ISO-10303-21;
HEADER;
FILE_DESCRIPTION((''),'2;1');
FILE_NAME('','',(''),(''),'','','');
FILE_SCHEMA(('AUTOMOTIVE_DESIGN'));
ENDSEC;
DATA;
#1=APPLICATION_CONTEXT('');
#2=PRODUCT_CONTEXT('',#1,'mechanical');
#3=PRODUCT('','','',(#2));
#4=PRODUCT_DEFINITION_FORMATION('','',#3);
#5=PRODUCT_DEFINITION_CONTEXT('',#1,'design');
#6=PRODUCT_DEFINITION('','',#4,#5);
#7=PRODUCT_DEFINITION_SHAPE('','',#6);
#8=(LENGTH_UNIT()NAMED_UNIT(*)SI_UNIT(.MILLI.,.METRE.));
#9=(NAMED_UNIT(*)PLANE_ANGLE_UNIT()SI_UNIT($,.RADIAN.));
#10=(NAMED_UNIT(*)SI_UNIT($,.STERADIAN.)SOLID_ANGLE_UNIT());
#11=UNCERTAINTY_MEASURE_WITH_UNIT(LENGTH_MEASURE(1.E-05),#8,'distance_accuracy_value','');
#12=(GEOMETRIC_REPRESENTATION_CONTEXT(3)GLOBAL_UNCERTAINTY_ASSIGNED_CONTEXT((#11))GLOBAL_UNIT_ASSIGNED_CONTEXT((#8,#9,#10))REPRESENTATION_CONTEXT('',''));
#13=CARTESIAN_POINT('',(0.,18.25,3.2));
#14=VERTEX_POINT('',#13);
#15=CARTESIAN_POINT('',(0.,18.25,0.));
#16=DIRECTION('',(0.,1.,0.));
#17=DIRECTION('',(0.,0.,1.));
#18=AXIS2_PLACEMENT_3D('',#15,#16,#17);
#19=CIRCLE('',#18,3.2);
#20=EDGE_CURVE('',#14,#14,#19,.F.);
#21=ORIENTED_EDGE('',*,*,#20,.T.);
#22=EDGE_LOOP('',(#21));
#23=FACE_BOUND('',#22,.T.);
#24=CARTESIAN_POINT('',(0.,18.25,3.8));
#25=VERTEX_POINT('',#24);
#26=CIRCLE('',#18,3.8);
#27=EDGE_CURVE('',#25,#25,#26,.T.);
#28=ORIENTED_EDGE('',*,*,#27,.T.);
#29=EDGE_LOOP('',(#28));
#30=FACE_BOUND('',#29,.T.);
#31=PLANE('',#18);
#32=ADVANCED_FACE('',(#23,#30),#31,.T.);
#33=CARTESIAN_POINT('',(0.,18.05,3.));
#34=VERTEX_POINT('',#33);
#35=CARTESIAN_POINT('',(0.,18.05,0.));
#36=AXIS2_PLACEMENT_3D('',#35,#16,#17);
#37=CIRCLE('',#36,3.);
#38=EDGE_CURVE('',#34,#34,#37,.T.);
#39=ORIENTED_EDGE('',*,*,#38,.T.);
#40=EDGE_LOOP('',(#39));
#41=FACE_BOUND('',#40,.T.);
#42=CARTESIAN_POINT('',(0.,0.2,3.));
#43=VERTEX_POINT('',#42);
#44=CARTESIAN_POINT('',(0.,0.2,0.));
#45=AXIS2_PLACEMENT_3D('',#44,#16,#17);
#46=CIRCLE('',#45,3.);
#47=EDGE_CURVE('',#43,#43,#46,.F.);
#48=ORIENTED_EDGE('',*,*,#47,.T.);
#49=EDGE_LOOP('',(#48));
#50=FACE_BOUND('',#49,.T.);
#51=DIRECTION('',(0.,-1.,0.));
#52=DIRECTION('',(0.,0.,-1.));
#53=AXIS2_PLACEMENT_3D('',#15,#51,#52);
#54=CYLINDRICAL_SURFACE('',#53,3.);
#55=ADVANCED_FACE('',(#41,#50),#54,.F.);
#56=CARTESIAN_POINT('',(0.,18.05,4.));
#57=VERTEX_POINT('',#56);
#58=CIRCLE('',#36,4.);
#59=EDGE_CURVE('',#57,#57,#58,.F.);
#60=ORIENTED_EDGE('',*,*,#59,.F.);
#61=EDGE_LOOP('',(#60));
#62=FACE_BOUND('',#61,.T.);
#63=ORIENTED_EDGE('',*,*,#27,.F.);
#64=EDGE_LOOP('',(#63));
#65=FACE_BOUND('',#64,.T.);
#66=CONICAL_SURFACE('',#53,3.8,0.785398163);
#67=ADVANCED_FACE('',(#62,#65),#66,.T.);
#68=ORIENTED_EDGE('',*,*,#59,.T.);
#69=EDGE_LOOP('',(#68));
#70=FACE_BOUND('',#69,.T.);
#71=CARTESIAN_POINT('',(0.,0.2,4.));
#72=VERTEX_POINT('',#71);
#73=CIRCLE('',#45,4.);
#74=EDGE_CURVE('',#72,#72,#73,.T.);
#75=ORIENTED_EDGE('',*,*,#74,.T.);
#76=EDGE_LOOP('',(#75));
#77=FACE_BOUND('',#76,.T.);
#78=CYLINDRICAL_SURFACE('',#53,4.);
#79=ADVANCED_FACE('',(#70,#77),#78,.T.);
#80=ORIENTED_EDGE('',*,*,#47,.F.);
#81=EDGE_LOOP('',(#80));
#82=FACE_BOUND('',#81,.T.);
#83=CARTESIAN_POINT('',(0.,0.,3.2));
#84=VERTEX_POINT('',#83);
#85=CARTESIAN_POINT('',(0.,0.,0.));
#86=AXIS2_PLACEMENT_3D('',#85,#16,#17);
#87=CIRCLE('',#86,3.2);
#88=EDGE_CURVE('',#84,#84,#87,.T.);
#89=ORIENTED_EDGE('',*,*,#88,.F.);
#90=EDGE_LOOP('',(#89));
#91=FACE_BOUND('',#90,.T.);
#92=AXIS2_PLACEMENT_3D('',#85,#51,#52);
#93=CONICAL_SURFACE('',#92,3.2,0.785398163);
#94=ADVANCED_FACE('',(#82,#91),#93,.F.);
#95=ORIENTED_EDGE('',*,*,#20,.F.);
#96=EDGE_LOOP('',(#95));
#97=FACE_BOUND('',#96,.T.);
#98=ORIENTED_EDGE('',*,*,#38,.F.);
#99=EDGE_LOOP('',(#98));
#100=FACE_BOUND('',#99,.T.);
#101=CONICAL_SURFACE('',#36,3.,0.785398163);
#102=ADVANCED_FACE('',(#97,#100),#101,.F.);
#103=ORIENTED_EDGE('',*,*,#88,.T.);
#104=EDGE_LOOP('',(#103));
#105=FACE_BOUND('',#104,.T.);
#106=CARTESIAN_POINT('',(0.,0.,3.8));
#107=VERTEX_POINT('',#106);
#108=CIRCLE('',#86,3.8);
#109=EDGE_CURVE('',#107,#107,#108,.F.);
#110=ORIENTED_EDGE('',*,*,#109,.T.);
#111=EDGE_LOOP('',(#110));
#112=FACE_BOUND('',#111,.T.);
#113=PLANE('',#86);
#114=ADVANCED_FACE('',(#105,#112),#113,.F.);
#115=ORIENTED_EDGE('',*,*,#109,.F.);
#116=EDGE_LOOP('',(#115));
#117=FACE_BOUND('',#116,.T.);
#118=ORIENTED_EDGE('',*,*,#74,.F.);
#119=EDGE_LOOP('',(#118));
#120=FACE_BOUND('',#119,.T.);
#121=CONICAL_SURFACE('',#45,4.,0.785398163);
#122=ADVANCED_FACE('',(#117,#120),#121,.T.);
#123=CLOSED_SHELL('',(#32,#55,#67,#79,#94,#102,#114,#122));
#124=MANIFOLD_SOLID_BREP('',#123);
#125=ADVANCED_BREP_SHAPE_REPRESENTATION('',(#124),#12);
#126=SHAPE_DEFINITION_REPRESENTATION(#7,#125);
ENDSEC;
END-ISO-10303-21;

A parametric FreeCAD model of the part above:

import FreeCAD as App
import Part
import Sketcher
Q = App.Units.Quantity


def edges_at(feature, points):
    """Names of the edges that pass closest to the given points."""
    edges = feature.Shape.Edges
    near = lambda p: min(range(len(edges)), key=lambda i: edges[i].distToShape(Part.Vertex(*p))[0])
    return sorted({f"Edge{near(p) + 1}" for p in points})

doc = App.newDocument("Part")
body = doc.addObject("PartDesign::Body", "Body")

sketch1 = doc.addObject("Sketcher::SketchObject", "Sketch")
body.addObject(sketch1)
sketch1.AttachmentSupport = (doc.XZ_Plane, [""])
sketch1.MapMode = "FlatFace"
sketch1.addGeometry(Part.Circle(App.Vector(0, 0, 0), App.Vector(0, 0, 1), 4), False)
sketch1.addGeometry(Part.Circle(App.Vector(0, 0, 0), App.Vector(0, 0, 1), 3), False)
sketch1.addConstraint(Sketcher.Constraint("Coincident", 0, 3, -1, 1))
sketch1.addConstraint(Sketcher.Constraint("Coincident", 1, 3, -1, 1))
sketch1.addConstraint(Sketcher.Constraint("Diameter", 0, Q("8 mm")))
sketch1.addConstraint(Sketcher.Constraint("Diameter", 1, Q("6 mm")))
pad1 = doc.addObject("PartDesign::Pad", "Pad")
body.addObject(pad1)
pad1.Profile = sketch1
pad1.Length = 18.25
pad1.Reversed = True
doc.recompute()

chamfer = doc.addObject("PartDesign::Chamfer", "Chamfer")
body.addObject(chamfer)
chamfer.Base = (pad1, edges_at(pad1, [
    (0, 0, -4),
    (0, 18.25, -4),
    (0, 0, -3),
    (0, 18.25, -3),
]))
chamfer.Size = 0.2

doc.recompute()
